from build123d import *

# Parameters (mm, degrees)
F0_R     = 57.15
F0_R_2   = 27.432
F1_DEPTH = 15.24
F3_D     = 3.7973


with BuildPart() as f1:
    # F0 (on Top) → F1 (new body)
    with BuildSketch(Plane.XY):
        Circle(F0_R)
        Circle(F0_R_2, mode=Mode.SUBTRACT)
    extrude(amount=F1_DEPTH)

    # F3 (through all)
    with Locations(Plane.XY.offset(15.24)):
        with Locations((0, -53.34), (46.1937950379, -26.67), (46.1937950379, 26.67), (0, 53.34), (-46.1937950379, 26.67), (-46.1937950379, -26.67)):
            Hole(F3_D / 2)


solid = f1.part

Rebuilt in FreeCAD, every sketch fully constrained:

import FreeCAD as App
import Part
import Sketcher
Q = App.Units.Quantity

doc = App.newDocument("Part")
params = doc.addObject("Spreadsheet::Sheet", "Params")
for row, (alias, value) in enumerate([
    ("sketch1_diameter", "4.5 in"),
    ("sketch1_diameter2", "2.16 in"),
    ("pad1_length", "0.6 in"),
    ("hole_diameter", "0.1495 in"),
], start=1):
    params.set(f"A{row}", alias)
    params.set(f"B{row}", "=" + value)
    params.setAlias(f"B{row}", alias)

body = doc.addObject("PartDesign::Body", "Body")

sketch1 = body.newObject("Sketcher::SketchObject", "Sketch")
sketch1.AttachmentSupport = (doc.getObject("XY_Plane"), [""])
sketch1.MapMode = "FlatFace"
sketch1.addGeometry([
    Part.Circle(App.Vector(0, 0, 0), App.Vector(0, 0, 1), 57),
    Part.Circle(App.Vector(0, 0, 0), App.Vector(0, 0, 1), 27),
], False)
sketch1.addConstraint([
    Sketcher.Constraint("Coincident", 0, 3, -1, 1),
    Sketcher.Constraint("Coincident", 1, 3, -1, 1),
    Sketcher.Constraint("Diameter", 0, Q("4.5 in")),
    Sketcher.Constraint("Diameter", 1, Q("2.16 in")),
])
sketch1.setExpression("Constraints[2]", "Params.sketch1_diameter")
sketch1.setExpression("Constraints[3]", "Params.sketch1_diameter2")
pad1 = body.newObject("PartDesign::Pad", "Pad")
pad1.Profile = sketch1
pad1.setExpression("Length", "Params.pad1_length")

sketch2 = body.newObject("Sketcher::SketchObject", "Sketch001")
sketch2.AttachmentSupport = (doc.getObject("XY_Plane"), [""])
sketch2.MapMode = "FlatFace"
sketch2.AttachmentOffset = App.Placement(App.Vector(0, 0, 0.6 * 25.4), App.Rotation())
sketch2.addGeometry([
    Part.Circle(App.Vector(0, -53.3, 0), App.Vector(0, 0, 1), 1.9),
    Part.Circle(App.Vector(46.2, -26.7, 0), App.Vector(0, 0, 1), 1.9),
    Part.Circle(App.Vector(46.2, 26.7, 0), App.Vector(0, 0, 1), 1.9),
    Part.Circle(App.Vector(0, 53.3, 0), App.Vector(0, 0, 1), 1.9),
    Part.Circle(App.Vector(-46.2, 26.7, 0), App.Vector(0, 0, 1), 1.9),
    Part.Circle(App.Vector(-46.2, -26.7, 0), App.Vector(0, 0, 1), 1.9),
], False)
sketch2.addConstraint([
    Sketcher.Constraint("Equal", 0, 1),
    Sketcher.Constraint("Equal", 1, 2),
    Sketcher.Constraint("Equal", 2, 3),
    Sketcher.Constraint("Equal", 3, 4),
    Sketcher.Constraint("Equal", 4, 5),
    Sketcher.Constraint("Symmetric", 0, 3, 3, 3, -1, 1),
    Sketcher.Constraint("Symmetric", 1, 3, 4, 3, -1, 1),
    Sketcher.Constraint("Symmetric", 2, 3, 5, 3, -1, 1),
    Sketcher.Constraint("Symmetric", 2, 3, 4, 3, -2),
    Sketcher.Constraint("PointOnObject", 0, 3, -2),
    Sketcher.Constraint("Diameter", 0, Q("0.1495 in")),
    Sketcher.Constraint("DistanceY", 0, 3, -1, 1, Q("2.1 in")),
    Sketcher.Constraint("DistanceY", 1, 3, 2, 3, Q("2.1 in")),
    Sketcher.Constraint("DistanceX", 4, 3, 2, 3, Q("92.38759 mm")),
])
doc.recompute()
hole = body.newObject("PartDesign::Hole", "Hole")
hole.Profile = sketch2
hole.ThreadType = "None"
hole.setExpression("Diameter", "Params.hole_diameter")
hole.DepthType = "ThroughAll"

doc.recompute()
